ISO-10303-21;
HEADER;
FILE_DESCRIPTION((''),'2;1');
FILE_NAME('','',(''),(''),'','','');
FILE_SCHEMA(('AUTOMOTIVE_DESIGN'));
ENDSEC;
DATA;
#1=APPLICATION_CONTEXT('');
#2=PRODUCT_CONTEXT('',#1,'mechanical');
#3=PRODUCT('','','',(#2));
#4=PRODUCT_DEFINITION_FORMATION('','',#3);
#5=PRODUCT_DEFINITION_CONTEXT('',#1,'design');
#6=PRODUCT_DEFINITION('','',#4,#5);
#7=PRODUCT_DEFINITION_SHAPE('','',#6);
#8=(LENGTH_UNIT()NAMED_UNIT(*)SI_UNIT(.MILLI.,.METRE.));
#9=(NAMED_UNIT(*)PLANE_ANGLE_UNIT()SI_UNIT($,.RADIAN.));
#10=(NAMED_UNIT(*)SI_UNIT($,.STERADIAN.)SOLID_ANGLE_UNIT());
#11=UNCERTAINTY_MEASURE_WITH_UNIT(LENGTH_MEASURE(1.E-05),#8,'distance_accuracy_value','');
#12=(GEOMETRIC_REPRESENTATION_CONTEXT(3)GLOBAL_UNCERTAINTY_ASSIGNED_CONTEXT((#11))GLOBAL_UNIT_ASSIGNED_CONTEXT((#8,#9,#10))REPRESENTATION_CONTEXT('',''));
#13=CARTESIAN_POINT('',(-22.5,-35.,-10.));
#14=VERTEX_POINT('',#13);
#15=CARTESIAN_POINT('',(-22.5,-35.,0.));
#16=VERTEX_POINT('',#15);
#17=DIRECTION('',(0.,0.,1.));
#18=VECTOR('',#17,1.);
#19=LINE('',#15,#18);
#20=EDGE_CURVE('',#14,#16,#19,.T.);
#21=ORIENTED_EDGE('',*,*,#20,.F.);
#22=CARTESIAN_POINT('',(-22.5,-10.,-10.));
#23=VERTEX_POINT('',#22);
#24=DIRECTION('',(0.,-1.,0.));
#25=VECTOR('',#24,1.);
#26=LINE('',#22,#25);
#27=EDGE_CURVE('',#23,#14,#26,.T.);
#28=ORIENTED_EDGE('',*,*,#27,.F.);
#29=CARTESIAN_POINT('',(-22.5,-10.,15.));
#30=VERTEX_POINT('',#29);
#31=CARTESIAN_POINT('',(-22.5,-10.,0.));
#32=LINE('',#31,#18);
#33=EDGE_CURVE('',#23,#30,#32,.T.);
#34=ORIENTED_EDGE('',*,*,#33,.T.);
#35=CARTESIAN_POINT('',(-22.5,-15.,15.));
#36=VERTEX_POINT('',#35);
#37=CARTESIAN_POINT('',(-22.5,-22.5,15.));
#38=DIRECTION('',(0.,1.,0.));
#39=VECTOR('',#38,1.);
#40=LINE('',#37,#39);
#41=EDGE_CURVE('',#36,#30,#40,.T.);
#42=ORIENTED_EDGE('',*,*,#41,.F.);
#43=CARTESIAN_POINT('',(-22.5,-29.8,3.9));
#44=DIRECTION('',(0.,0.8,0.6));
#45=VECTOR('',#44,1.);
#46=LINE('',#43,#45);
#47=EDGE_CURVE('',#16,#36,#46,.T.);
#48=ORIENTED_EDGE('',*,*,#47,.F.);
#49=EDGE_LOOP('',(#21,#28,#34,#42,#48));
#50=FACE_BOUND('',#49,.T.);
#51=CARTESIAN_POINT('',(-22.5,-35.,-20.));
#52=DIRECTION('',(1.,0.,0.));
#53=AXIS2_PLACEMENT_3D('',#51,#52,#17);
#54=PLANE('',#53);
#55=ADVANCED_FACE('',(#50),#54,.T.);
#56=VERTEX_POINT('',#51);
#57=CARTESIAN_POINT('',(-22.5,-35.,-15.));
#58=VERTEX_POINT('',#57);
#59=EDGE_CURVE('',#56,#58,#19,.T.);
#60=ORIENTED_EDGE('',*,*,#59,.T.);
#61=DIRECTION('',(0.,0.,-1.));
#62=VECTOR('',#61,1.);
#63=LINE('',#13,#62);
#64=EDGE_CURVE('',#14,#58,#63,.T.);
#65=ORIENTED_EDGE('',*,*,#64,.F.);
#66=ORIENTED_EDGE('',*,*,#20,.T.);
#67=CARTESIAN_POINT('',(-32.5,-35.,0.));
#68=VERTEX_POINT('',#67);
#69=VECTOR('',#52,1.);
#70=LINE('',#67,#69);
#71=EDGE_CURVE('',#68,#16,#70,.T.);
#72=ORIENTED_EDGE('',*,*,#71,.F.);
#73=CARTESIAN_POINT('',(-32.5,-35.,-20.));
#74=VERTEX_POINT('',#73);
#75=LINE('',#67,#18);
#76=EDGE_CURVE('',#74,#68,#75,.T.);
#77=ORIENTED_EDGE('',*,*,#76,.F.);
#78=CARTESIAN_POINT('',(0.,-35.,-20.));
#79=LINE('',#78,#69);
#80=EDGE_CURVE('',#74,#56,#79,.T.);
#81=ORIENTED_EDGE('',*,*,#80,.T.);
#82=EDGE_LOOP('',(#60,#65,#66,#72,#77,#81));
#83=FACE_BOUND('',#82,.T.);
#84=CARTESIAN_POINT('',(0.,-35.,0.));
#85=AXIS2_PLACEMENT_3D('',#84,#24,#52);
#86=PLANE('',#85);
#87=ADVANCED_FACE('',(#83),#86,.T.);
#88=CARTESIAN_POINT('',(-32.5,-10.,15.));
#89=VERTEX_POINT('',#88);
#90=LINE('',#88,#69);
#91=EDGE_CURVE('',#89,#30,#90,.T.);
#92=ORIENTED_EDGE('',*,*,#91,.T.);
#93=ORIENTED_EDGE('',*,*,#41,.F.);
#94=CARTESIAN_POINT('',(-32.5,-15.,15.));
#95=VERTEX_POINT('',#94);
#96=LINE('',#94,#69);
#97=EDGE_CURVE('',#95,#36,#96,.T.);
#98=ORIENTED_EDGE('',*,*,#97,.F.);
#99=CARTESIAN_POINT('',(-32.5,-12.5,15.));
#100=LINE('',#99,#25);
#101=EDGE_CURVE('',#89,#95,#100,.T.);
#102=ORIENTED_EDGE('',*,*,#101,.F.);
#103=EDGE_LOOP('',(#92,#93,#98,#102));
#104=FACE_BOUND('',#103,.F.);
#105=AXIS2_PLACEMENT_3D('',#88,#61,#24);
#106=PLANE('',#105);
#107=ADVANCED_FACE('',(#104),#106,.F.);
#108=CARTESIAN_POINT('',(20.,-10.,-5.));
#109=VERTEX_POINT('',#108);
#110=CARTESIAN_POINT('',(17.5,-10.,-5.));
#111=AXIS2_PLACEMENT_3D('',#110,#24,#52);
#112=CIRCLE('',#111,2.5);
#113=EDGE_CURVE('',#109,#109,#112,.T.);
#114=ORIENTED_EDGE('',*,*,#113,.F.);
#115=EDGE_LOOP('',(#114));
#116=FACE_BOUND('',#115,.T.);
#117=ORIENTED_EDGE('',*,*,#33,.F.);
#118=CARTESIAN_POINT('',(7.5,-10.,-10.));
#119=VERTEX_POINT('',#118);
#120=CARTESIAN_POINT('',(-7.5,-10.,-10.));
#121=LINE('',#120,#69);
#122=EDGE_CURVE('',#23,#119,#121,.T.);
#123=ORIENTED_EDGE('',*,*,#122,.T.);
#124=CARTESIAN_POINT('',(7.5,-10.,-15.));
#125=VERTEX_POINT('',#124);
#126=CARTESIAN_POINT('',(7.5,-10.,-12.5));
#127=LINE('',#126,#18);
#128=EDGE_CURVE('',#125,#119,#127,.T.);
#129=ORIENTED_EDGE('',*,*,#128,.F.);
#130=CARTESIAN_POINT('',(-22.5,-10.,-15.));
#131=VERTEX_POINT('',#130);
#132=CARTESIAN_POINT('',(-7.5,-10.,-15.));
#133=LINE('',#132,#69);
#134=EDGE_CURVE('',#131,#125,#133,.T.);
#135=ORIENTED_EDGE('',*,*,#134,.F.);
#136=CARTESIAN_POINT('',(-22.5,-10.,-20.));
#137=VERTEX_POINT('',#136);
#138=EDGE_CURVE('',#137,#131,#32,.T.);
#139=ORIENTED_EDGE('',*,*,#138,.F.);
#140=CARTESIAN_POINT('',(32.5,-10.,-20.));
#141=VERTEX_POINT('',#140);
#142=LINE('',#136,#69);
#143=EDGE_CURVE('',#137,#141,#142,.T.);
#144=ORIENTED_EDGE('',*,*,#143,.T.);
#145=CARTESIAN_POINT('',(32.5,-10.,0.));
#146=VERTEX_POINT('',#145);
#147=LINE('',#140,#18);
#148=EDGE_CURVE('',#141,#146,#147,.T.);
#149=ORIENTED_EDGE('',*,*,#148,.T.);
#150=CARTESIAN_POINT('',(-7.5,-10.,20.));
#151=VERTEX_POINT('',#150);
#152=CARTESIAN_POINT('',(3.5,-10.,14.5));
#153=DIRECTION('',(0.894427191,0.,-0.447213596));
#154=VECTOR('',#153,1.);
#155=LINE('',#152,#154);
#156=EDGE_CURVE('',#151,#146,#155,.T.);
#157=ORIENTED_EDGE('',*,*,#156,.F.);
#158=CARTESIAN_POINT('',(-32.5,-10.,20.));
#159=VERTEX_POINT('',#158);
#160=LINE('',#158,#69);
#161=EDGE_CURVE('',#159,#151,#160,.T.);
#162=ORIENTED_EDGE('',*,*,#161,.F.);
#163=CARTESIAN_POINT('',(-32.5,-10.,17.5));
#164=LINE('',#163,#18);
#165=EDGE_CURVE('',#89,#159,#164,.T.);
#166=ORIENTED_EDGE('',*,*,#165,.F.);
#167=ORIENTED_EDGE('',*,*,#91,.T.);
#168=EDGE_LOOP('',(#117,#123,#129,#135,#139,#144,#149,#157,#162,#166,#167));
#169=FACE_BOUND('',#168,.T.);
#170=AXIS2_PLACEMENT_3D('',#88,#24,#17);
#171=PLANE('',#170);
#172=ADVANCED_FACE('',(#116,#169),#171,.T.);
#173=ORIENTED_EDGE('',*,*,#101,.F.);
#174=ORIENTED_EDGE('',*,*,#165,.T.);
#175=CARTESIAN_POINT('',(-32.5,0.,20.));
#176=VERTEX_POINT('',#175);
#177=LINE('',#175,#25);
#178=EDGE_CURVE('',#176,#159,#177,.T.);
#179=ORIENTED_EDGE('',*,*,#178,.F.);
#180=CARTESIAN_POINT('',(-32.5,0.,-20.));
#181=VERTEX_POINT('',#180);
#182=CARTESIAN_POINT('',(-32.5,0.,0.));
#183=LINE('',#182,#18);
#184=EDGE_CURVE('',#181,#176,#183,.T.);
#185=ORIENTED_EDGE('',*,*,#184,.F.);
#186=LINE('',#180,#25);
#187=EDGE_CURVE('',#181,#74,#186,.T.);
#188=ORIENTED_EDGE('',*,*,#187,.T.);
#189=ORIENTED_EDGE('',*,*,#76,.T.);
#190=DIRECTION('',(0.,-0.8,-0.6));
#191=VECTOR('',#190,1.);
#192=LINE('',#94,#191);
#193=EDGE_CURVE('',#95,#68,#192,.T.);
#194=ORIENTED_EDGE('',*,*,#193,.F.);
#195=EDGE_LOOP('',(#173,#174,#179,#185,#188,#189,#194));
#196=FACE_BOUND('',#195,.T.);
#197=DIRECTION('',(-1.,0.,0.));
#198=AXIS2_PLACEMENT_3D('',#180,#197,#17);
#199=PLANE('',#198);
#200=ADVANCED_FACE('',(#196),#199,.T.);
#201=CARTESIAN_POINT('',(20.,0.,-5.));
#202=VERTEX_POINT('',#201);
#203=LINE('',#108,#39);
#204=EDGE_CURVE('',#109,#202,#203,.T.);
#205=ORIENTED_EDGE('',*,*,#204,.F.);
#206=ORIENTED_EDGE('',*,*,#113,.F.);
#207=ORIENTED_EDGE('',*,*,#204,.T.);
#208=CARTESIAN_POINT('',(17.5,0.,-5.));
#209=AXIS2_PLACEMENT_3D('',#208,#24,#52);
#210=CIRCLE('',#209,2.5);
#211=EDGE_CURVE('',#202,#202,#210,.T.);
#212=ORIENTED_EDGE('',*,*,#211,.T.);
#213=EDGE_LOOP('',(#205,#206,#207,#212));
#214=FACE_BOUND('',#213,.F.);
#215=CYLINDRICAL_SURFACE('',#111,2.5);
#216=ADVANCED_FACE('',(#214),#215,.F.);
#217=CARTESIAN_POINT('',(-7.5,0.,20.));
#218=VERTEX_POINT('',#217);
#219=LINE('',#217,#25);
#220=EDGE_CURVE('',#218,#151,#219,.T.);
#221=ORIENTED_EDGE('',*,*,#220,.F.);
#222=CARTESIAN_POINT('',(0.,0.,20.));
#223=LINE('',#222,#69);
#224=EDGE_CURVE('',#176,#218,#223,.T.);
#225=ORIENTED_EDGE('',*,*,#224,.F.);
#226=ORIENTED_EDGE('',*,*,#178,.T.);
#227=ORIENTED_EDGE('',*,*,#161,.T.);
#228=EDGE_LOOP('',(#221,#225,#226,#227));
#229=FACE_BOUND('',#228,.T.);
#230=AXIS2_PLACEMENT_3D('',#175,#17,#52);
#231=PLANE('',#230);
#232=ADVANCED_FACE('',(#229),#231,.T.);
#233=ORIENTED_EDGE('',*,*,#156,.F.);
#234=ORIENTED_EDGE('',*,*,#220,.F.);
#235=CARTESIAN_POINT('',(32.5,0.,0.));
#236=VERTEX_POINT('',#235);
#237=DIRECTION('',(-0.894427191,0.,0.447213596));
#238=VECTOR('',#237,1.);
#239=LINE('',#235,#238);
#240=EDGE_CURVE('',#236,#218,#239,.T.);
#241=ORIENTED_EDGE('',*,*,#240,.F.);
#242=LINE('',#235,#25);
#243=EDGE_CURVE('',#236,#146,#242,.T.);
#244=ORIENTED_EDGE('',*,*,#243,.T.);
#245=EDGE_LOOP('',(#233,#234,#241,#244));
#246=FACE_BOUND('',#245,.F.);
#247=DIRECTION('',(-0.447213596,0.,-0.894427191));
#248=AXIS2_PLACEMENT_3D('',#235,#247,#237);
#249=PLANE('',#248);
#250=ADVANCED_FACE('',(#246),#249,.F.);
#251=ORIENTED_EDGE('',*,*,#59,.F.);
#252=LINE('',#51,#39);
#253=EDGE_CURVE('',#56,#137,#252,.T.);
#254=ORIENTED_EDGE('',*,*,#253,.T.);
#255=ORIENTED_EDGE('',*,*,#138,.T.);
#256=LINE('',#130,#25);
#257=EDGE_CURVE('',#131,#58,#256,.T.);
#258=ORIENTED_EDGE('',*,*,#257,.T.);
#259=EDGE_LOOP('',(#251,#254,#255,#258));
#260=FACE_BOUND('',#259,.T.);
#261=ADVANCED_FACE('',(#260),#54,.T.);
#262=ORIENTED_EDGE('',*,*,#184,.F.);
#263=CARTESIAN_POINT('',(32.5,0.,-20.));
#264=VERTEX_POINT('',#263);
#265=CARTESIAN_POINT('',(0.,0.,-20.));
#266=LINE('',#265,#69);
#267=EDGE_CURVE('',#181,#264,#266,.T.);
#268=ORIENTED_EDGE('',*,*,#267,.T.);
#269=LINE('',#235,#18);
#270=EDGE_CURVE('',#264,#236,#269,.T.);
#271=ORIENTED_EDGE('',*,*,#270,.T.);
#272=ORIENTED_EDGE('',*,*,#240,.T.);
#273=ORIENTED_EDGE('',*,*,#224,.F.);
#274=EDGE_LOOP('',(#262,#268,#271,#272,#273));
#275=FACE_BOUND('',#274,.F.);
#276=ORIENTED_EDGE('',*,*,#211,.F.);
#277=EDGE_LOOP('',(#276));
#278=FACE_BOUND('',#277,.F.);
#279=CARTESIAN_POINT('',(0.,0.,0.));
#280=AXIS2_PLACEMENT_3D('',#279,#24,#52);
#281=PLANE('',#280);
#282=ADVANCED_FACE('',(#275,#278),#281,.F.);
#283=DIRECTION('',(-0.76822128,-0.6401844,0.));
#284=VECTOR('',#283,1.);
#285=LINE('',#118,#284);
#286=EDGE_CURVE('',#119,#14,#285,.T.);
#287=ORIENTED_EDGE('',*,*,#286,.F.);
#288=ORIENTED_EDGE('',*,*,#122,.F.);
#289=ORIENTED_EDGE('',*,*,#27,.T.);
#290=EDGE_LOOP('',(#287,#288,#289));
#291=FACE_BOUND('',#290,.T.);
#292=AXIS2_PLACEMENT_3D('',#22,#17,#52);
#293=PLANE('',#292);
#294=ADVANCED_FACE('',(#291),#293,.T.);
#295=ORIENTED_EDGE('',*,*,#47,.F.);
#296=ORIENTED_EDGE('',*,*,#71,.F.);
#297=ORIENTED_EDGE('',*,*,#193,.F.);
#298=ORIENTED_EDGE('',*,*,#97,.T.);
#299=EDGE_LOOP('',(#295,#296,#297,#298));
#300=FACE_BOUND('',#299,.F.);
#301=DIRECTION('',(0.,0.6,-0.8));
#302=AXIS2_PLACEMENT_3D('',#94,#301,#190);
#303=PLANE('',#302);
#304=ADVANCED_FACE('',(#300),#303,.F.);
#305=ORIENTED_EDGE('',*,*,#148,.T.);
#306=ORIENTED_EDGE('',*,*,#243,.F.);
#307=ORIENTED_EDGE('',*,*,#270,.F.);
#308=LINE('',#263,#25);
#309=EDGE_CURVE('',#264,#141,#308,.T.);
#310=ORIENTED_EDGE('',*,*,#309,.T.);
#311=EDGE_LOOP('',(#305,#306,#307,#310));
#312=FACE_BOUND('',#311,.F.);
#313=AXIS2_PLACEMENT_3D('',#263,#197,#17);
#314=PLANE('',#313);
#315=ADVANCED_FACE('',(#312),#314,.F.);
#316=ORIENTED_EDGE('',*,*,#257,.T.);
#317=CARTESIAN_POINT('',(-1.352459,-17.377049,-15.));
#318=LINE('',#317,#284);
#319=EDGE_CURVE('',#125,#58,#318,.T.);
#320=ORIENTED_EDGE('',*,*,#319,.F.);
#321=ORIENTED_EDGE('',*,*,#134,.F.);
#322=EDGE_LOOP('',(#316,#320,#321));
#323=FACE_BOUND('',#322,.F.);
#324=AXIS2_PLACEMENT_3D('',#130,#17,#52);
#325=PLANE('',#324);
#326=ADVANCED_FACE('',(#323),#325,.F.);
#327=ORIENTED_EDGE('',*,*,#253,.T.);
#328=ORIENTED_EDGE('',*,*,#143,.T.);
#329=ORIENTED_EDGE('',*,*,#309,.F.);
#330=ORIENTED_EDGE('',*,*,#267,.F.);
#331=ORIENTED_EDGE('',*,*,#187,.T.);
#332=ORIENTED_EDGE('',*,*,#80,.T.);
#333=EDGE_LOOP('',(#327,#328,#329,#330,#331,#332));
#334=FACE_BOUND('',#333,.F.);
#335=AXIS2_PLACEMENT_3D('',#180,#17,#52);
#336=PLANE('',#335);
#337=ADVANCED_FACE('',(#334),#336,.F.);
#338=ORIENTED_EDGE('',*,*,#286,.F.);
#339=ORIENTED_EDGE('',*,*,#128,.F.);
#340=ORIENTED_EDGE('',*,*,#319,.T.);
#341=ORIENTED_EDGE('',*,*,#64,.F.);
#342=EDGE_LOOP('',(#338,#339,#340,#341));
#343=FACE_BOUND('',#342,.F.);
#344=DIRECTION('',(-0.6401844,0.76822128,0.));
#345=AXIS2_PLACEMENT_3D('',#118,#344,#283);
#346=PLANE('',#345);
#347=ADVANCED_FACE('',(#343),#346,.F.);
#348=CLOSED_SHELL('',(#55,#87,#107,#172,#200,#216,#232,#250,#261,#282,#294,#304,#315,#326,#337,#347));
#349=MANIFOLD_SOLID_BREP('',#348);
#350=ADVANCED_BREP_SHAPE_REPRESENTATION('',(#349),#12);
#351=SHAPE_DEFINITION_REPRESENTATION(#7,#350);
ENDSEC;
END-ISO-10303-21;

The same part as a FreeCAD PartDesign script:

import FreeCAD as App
import Part
import Sketcher


def add_polygon(sketch, points):
    """Adds a closed chain of lines whose ends are joined by coincident constraints."""
    first, n = sketch.GeometryCount, len(points)
    for a, b in zip(points, points[1:] + points[:1]):
        sketch.addGeometry(Part.LineSegment(App.Vector(*a, 0), App.Vector(*b, 0)), False)
    for i in range(n):
        sketch.addConstraint(Sketcher.Constraint("Coincident", first + i, 2, first + (i + 1) % n, 1))

doc = App.newDocument("Part")
body = doc.addObject("PartDesign::Body", "Body")

sketch1 = doc.addObject("Sketcher::SketchObject", "Sketch")
body.addObject(sketch1)
sketch1.AttachmentSupport = (doc.XZ_Plane, [""])
sketch1.MapMode = "FlatFace"
add_polygon(sketch1, [(-32, 20), (-32, -20), (32, -20), (32, 20)])
sketch1.addConstraint(Sketcher.Constraint("Vertical", 0))
sketch1.addConstraint(Sketcher.Constraint("Horizontal", 1))
sketch1.addConstraint(Sketcher.Constraint("Vertical", 2))
sketch1.addConstraint(Sketcher.Constraint("Horizontal", 3))
sketch1.addConstraint(Sketcher.Constraint("Symmetric", 0, 2, 2, 2, -1, 1))
sketch1.addConstraint(Sketcher.Constraint("DistanceX", 1, 1, 1, 2, 65.0))
sketch1.addConstraint(Sketcher.Constraint("DistanceY", 0, 2, 0, 1, 40.0))
pad1 = doc.addObject("PartDesign::Pad", "Pad")
body.addObject(pad1)
pad1.Profile = sketch1
pad1.Length = 35

sketch2 = doc.addObject("Sketcher::SketchObject", "Sketch001")
body.addObject(sketch2)
sketch2.AttachmentSupport = (doc.XZ_Plane, [""])
sketch2.MapMode = "FlatFace"
sketch2.AttachmentOffset = App.Placement(App.Vector(0, 0, 35), App.Rotation())
add_polygon(sketch2, [(-22, 20), (-22, -20), (32, -20), (32, 20)])
sketch2.addConstraint(Sketcher.Constraint("Vertical", 0))
sketch2.addConstraint(Sketcher.Constraint("Horizontal", 1))
sketch2.addConstraint(Sketcher.Constraint("Vertical", 2))
sketch2.addConstraint(Sketcher.Constraint("Horizontal", 3))
sketch2.addConstraint(Sketcher.Constraint("DistanceX", 1, 1, 1, 2, 55.0))
sketch2.addConstraint(Sketcher.Constraint("DistanceY", 0, 2, 0, 1, 40.0))
sketch2.addConstraint(Sketcher.Constraint("DistanceY", 0, 2, -1, 1, 20.0))
sketch2.addConstraint(Sketcher.Constraint("DistanceX", 0, 2, -1, 1, 22.5))
pocket1 = doc.addObject("PartDesign::Pocket", "Pocket")
body.addObject(pocket1)
pocket1.Profile = sketch2
pocket1.Length = 25

sketch3 = doc.addObject("Sketcher::SketchObject", "Sketch002")
body.addObject(sketch3)
sketch3.AttachmentSupport = (doc.YZ_Plane, [""])
sketch3.MapMode = "FlatFace"
sketch3.AttachmentOffset = App.Placement(App.Vector(0, 0, -32.5), App.Rotation())
add_polygon(sketch3, [(-10, 20), (-10, 15), (-15, 15), (-15, 20)])
sketch3.addConstraint(Sketcher.Constraint("Vertical", 0))
sketch3.addConstraint(Sketcher.Constraint("Horizontal", 1))
sketch3.addConstraint(Sketcher.Constraint("Vertical", 2))
sketch3.addConstraint(Sketcher.Constraint("Horizontal", 3))
sketch3.addConstraint(Sketcher.Constraint("Equal", 3, 0))
sketch3.addConstraint(Sketcher.Constraint("DistanceX", 1, 2, 1, 1, 5.0))
sketch3.addConstraint(Sketcher.Constraint("DistanceX", 0, 2, -1, 1, 10.0))
sketch3.addConstraint(Sketcher.Constraint("DistanceY", -1, 1, 0, 2, 15.0))
pocket2 = doc.addObject("PartDesign::Pocket", "Pocket001")
body.addObject(pocket2)
pocket2.Profile = sketch3
pocket2.Type = "ThroughAll"
pocket2.Reversed = True

sketch4 = doc.addObject("Sketcher::SketchObject", "Sketch003")
body.addObject(sketch4)
sketch4.AttachmentSupport = (doc.XZ_Plane, [""])
sketch4.MapMode = "FlatFace"
sketch4.AttachmentOffset = App.Placement(App.Vector(0, 0, 10), App.Rotation())
sketch4.addGeometry(Part.Circle(App.Vector(17.5, -5, 0), App.Vector(0, 0, 1), 2.5), False)
sketch4.addConstraint(Sketcher.Constraint("Diameter", 0, 5.0))
sketch4.addConstraint(Sketcher.Constraint("DistanceY", 0, 3, -1, 1, 5.0))
sketch4.addConstraint(Sketcher.Constraint("DistanceX", -1, 1, 0, 3, 17.5))
pocket3 = doc.addObject("PartDesign::Pocket", "Pocket002")
body.addObject(pocket3)
pocket3.Profile = sketch4
pocket3.Type = "ThroughAll"

sketch5 = doc.addObject("Sketcher::SketchObject", "Sketch004")
body.addObject(sketch5)
sketch5.AttachmentSupport = (doc.YZ_Plane, [""])
sketch5.MapMode = "FlatFace"
sketch5.AttachmentOffset = App.Placement(App.Vector(0, 0, -32.5), App.Rotation())
add_polygon(sketch5, [(-15, 20), (-15, 15), (-35, 0), (-35, 20)])
sketch5.addConstraint(Sketcher.Constraint("Vertical", 0))
sketch5.addConstraint(Sketcher.Constraint("Vertical", 2))
sketch5.addConstraint(Sketcher.Constraint("Horizontal", 3))
sketch5.addConstraint(Sketcher.Constraint("PointOnObject", 1, 2, -1))
sketch5.addConstraint(Sketcher.Constraint("Equal", 3, 2))
sketch5.addConstraint(Sketcher.Constraint("DistanceX", 3, 1, 3, 2, 20.0))
sketch5.addConstraint(Sketcher.Constraint("DistanceY", 0, 2, 0, 1, 5.0))
sketch5.addConstraint(Sketcher.Constraint("DistanceX", 0, 2, -1, 1, 15.0))
pocket4 = doc.addObject("PartDesign::Pocket", "Pocket003")
body.addObject(pocket4)
pocket4.Profile = sketch5
pocket4.Type = "ThroughAll"
pocket4.Reversed = True

sketch6 = doc.addObject("Sketcher::SketchObject", "Sketch005")
body.addObject(sketch6)
sketch6.AttachmentSupport = (doc.XZ_Plane, [""])
sketch6.MapMode = "FlatFace"
add_polygon(sketch6, [(-8, 20), (32, 20), (32, 0)])
sketch6.addConstraint(Sketcher.Constraint("Horizontal", 0))
sketch6.addConstraint(Sketcher.Constraint("Vertical", 1))
sketch6.addConstraint(Sketcher.Constraint("PointOnObject", 1, 2, -1))
sketch6.addConstraint(Sketcher.Constraint("DistanceX", 0, 1, 0, 2, 40.0))
sketch6.addConstraint(Sketcher.Constraint("DistanceY", 1, 2, 1, 1, 20.0))
sketch6.addConstraint(Sketcher.Constraint("DistanceX", -1, 1, 0, 2, 32.5))
pocket5 = doc.addObject("PartDesign::Pocket", "Pocket004")
body.addObject(pocket5)
pocket5.Profile = sketch6
pocket5.Type = "ThroughAll"
pocket5.Reversed = True

sketch7 = doc.addObject("Sketcher::SketchObject", "Sketch006")
body.addObject(sketch7)
sketch7.AttachmentSupport = (doc.XZ_Plane, [""])
sketch7.MapMode = "FlatFace"
sketch7.AttachmentOffset = App.Placement(App.Vector(0, 0, 10), App.Rotation())
add_polygon(sketch7, [(-22, -10), (-22, -15), (8, -15), (8, -10)])
sketch7.addConstraint(Sketcher.Constraint("Vertical", 0))
sketch7.addConstraint(Sketcher.Constraint("Horizontal", 1))
sketch7.addConstraint(Sketcher.Constraint("Vertical", 2))
sketch7.addConstraint(Sketcher.Constraint("Horizontal", 3))
sketch7.addConstraint(Sketcher.Constraint("DistanceX", 1, 1, 1, 2, 30.0))
sketch7.addConstraint(Sketcher.Constraint("DistanceY", 0, 2, 0, 1, 5.0))
sketch7.addConstraint(Sketcher.Constraint("DistanceY", 0, 2, -1, 1, 15.0))
sketch7.addConstraint(Sketcher.Constraint("DistanceX", 0, 2, -1, 1, 22.5))
pad2 = doc.addObject("PartDesign::Pad", "Pad001")
body.addObject(pad2)
pad2.Profile = sketch7
pad2.Length = 25

sketch8 = doc.addObject("Sketcher::SketchObject", "Sketch007")
body.addObject(sketch8)
sketch8.AttachmentSupport = (doc.XY_Plane, [""])
sketch8.MapMode = "FlatFace"
sketch8.AttachmentOffset = App.Placement(App.Vector(0, 0, -10), App.Rotation())
add_polygon(sketch8, [(8, -10), (-22, -35), (8, -35)])
sketch8.addConstraint(Sketcher.Constraint("Horizontal", 1))
sketch8.addConstraint(Sketcher.Constraint("Vertical", 2))
sketch8.addConstraint(Sketcher.Constraint("DistanceX", 1, 1, 1, 2, 30.0))
sketch8.addConstraint(Sketcher.Constraint("DistanceY", 2, 1, 2, 2, 25.0))
sketch8.addConstraint(Sketcher.Constraint("DistanceY", 0, 2, -1, 1, 35.0))
sketch8.addConstraint(Sketcher.Constraint("DistanceX", 0, 2, -1, 1, 22.5))
pocket6 = doc.addObject("PartDesign::Pocket", "Pocket005")
body.addObject(pocket6)
pocket6.Profile = sketch8
pocket6.Type = "ThroughAll"

doc.recompute()
